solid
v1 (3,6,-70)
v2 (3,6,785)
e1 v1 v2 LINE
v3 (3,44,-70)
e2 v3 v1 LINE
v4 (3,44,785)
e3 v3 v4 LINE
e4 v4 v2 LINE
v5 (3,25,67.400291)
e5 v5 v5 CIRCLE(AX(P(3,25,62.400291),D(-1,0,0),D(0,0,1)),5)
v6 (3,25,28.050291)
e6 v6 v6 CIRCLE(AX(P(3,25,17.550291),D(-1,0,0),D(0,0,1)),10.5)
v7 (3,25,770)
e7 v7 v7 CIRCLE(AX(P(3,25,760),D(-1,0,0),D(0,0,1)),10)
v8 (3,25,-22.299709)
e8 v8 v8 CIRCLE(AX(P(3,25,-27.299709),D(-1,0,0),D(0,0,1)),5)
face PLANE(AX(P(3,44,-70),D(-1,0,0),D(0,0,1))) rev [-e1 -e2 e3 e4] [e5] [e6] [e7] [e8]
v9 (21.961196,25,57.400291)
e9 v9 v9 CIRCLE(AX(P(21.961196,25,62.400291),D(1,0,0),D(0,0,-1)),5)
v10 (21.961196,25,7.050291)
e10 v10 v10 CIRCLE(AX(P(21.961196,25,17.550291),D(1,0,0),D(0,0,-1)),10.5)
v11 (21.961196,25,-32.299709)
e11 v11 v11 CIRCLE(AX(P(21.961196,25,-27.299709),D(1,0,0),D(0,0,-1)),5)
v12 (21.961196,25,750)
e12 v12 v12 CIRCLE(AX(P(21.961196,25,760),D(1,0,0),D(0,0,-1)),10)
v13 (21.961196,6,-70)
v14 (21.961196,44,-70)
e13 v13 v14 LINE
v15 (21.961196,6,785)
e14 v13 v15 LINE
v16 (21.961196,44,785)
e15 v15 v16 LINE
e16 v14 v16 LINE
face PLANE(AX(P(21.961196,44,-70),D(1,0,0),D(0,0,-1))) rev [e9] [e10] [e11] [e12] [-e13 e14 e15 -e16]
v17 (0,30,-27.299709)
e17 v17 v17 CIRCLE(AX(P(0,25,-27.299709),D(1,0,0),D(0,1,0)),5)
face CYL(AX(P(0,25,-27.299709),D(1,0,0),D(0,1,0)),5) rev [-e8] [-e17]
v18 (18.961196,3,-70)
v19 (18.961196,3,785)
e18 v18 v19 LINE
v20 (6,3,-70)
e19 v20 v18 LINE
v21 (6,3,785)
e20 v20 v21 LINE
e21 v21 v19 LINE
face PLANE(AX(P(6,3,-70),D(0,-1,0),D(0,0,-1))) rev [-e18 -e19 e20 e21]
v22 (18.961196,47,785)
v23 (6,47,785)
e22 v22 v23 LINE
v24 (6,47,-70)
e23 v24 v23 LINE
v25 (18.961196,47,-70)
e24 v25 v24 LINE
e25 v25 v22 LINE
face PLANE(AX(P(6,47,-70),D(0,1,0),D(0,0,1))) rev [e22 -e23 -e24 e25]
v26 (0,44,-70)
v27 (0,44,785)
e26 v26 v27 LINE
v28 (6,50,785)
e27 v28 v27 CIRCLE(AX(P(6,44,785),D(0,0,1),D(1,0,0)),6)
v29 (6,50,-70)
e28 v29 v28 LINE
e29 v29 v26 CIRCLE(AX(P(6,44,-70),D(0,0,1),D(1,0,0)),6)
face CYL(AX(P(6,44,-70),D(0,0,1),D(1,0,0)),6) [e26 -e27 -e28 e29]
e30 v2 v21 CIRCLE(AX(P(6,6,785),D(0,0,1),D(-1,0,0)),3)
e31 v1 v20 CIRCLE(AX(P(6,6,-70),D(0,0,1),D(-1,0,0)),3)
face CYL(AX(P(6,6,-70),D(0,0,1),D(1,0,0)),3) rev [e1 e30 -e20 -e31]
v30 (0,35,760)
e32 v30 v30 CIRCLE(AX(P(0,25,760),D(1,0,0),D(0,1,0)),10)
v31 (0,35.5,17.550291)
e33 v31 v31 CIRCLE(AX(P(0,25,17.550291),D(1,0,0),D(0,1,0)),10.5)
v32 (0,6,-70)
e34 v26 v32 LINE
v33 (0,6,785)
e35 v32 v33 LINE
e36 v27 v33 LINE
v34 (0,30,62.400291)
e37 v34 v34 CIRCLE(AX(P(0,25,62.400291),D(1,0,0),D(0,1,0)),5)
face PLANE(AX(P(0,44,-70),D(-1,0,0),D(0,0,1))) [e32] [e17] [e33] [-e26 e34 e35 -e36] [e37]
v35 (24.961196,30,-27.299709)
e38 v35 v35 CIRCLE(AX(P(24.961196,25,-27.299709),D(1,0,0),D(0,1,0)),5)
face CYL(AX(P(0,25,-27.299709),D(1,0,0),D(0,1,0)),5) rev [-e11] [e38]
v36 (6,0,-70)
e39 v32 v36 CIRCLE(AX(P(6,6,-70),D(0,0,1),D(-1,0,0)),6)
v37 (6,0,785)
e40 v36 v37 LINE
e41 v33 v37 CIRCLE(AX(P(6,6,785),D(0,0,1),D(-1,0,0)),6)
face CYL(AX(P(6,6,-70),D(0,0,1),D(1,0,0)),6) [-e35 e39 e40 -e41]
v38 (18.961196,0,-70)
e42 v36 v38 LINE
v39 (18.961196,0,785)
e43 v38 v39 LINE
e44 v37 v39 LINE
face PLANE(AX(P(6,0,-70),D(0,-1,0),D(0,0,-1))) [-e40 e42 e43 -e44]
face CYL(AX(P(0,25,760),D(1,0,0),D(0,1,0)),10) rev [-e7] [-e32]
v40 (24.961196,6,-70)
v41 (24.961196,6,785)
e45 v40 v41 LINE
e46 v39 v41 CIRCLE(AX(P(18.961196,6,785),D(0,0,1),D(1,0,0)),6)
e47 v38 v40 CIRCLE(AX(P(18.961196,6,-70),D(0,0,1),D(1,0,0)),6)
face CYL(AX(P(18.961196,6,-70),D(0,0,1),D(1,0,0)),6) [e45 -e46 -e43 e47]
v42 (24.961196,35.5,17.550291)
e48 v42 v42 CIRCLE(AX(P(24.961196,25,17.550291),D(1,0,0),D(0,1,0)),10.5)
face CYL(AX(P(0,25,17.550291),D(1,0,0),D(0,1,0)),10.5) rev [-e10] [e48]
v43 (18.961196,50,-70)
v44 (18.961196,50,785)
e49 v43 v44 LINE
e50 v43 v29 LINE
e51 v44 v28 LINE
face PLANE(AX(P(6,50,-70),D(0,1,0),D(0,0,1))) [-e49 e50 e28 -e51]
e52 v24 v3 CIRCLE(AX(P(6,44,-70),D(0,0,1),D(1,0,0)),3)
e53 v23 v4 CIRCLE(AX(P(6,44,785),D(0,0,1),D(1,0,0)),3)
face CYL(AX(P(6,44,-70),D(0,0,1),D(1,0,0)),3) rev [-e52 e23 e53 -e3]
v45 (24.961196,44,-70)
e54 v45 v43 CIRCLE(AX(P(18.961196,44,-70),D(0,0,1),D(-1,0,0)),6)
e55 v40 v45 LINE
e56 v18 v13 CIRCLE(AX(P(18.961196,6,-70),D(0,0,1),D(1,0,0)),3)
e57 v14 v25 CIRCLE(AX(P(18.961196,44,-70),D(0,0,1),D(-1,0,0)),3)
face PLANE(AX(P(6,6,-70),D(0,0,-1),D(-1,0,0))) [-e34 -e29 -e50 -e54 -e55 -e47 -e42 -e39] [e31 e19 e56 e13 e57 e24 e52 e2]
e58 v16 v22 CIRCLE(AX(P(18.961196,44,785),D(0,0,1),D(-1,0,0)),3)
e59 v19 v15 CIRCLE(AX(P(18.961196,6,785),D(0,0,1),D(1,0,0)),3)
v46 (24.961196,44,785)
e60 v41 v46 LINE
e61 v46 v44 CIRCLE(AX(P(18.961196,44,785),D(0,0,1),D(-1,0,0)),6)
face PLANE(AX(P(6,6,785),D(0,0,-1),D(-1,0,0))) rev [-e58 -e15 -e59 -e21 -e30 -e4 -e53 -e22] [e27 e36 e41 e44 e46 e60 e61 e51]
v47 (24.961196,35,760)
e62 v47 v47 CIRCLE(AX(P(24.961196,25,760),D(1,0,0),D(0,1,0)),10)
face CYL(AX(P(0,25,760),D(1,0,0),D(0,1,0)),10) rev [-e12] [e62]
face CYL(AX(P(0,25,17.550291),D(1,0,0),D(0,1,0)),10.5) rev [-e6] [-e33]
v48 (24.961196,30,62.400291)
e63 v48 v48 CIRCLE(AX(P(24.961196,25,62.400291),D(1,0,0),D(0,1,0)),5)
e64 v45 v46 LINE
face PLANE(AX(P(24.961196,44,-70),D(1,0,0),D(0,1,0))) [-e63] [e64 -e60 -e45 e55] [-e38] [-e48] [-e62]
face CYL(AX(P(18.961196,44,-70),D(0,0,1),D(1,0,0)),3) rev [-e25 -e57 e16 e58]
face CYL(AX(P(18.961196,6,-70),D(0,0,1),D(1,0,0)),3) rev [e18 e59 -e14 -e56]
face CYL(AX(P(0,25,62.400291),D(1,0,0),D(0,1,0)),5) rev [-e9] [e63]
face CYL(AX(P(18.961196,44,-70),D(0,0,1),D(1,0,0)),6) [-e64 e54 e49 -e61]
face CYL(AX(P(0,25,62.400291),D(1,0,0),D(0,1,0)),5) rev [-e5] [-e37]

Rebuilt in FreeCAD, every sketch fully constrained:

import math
import FreeCAD as App
import Part
import Sketcher
Q = App.Units.Quantity

doc = App.newDocument("Part")
body = doc.addObject("PartDesign::Body", "Body")

# Sketch on XY plane
sketch1 = body.newObject("Sketcher::SketchObject", "Sketch")
sketch1.AttachmentSupport = (doc.getObject("XY_Plane"), [""])
sketch1.MapMode = "FlatFace"
sketch1.addGeometry([
    Part.LineSegment(App.Vector(0, 44, 0), App.Vector(0, 6, 0)),  # 0
    Part.ArcOfCircle(Part.Circle(App.Vector(6, 6, 0), App.Vector(0, 0, 1), 6), math.radians(180), math.radians(270)),  # 1
    Part.LineSegment(App.Vector(6, 0, 0), App.Vector(18.961196, 0, 0)),  # 2
    Part.ArcOfCircle(Part.Circle(App.Vector(18.961196, 6, 0), App.Vector(0, 0, 1), 6), math.radians(-90), math.radians(0)),  # 3
    Part.LineSegment(App.Vector(24.961196, 6, 0), App.Vector(24.961196, 44, 0)),  # 4
    Part.ArcOfCircle(Part.Circle(App.Vector(18.961196, 44, 0), App.Vector(0, 0, 1), 6), math.radians(0), math.radians(90)),  # 5
    Part.LineSegment(App.Vector(18.961196, 50, 0), App.Vector(6, 50, 0)),  # 6
    Part.ArcOfCircle(Part.Circle(App.Vector(6, 44, 0), App.Vector(0, 0, 1), 6), math.radians(90), math.radians(180)),  # 7
    Part.LineSegment(App.Vector(3, 6, 0), App.Vector(3, 44, 0)),  # 8
    Part.ArcOfCircle(Part.Circle(App.Vector(6, 44, 0), App.Vector(0, 0, 1), 3), math.radians(90), math.radians(180)),  # 9
    Part.LineSegment(App.Vector(6, 47, 0), App.Vector(18.961196, 47, 0)),  # 10
    Part.ArcOfCircle(Part.Circle(App.Vector(18.961196, 44, 0), App.Vector(0, 0, 1), 3), math.radians(0), math.radians(90)),  # 11
    Part.LineSegment(App.Vector(21.961196, 44, 0), App.Vector(21.961196, 6, 0)),  # 12
    Part.ArcOfCircle(Part.Circle(App.Vector(18.961196, 6, 0), App.Vector(0, 0, 1), 3), math.radians(-90), math.radians(0)),  # 13
    Part.LineSegment(App.Vector(18.961196, 3, 0), App.Vector(6, 3, 0)),  # 14
    Part.ArcOfCircle(Part.Circle(App.Vector(6, 6, 0), App.Vector(0, 0, 1), 3), math.radians(180), math.radians(270)),  # 15
], False)
sketch1.addConstraint([
    Sketcher.Constraint("Tangent", 0, 2, 1, 1),
    Sketcher.Constraint("Tangent", 1, 2, 2, 1),
    Sketcher.Constraint("Tangent", 2, 2, 3, 1),
    Sketcher.Constraint("Tangent", 3, 2, 4, 1),
    Sketcher.Constraint("Tangent", 4, 2, 5, 1),
    Sketcher.Constraint("Tangent", 5, 2, 6, 1),
    Sketcher.Constraint("Tangent", 6, 2, 7, 1),
    Sketcher.Constraint("Tangent", 7, 2, 0, 1),
    Sketcher.Constraint("Tangent", 8, 2, 9, 2),
    Sketcher.Constraint("Tangent", 9, 1, 10, 1),
    Sketcher.Constraint("Tangent", 10, 2, 11, 2),
    Sketcher.Constraint("Tangent", 11, 1, 12, 1),
    Sketcher.Constraint("Tangent", 12, 2, 13, 2),
    Sketcher.Constraint("Tangent", 13, 1, 14, 1),
    Sketcher.Constraint("Tangent", 14, 2, 15, 2),
    Sketcher.Constraint("Tangent", 15, 1, 8, 1),
    Sketcher.Constraint("Vertical", 0),
    Sketcher.Constraint("Horizontal", 2),
    Sketcher.Constraint("Vertical", 4),
    Sketcher.Constraint("Horizontal", 6),
    Sketcher.Constraint("Vertical", 8),
    Sketcher.Constraint("Horizontal", 10),
    Sketcher.Constraint("Vertical", 12),
    Sketcher.Constraint("Horizontal", 14),
    Sketcher.Constraint("Coincident", 9, 3, 7, 3),
    Sketcher.Constraint("Coincident", 11, 3, 5, 3),
    Sketcher.Constraint("Coincident", 13, 3, 3, 3),
    Sketcher.Constraint("Equal", 1, 3),
    Sketcher.Constraint("Equal", 3, 5),
    Sketcher.Constraint("Equal", 5, 7),
    Sketcher.Constraint("Equal", 13, 15),
    Sketcher.Constraint("PointOnObject", 0, 2, -2),
    Sketcher.Constraint("PointOnObject", 1, 2, -1),
    Sketcher.Constraint("Radius", 1, Q("6 mm")),
    Sketcher.Constraint("Radius", 9, Q("3 mm")),
    Sketcher.Constraint("DistanceY", 0, 2, 0, 1, Q("38 mm")),
    Sketcher.Constraint("DistanceX", 2, 1, 2, 2, Q("12.961196 mm")),
])
pad1 = body.newObject("PartDesign::Pad", "Pad")
pad1.Profile = sketch1
pad1.Type = "TwoLengths"
pad1.Length = 785
pad1.Length2 = 70

# Sketch on YZ plane
sketch2 = body.newObject("Sketcher::SketchObject", "Sketch001")
sketch2.AttachmentSupport = (doc.getObject("YZ_Plane"), [""])
sketch2.MapMode = "FlatFace"
sketch2.AttachmentOffset = App.Placement(App.Vector(0, 0, 24.961196), App.Rotation())
sketch2.addGeometry([
    Part.Circle(App.Vector(25, 17.550291, 0), App.Vector(0, 0, 1), 10.5),
    Part.Circle(App.Vector(25, 62.400291, 0), App.Vector(0, 0, 1), 5),
    Part.Circle(App.Vector(25, 760, 0), App.Vector(0, 0, 1), 10),
    Part.Circle(App.Vector(25, -27.299709, 0), App.Vector(0, 0, 1), 5),
], False)
sketch2.addConstraint([
    Sketcher.Constraint("Equal", 1, 3),
    Sketcher.Constraint("Vertical", 0, 3, 1, 3),
    Sketcher.Constraint("Vertical", 1, 3, 2, 3),
    Sketcher.Constraint("Vertical", 2, 3, 3, 3),
    Sketcher.Constraint("Diameter", 0, Q("21 mm")),
    Sketcher.Constraint("Diameter", 1, Q("10 mm")),
    Sketcher.Constraint("Diameter", 2, Q("20 mm")),
    Sketcher.Constraint("DistanceX", -1, 1, 0, 3, Q("25 mm")),
    Sketcher.Constraint("DistanceY", -1, 1, 2, 3, Q("760 mm")),
    Sketcher.Constraint("DistanceY", 3, 3, 1, 3, Q("89.7 mm")),
    Sketcher.Constraint("DistanceY", 0, 3, 1, 3, Q("44.85 mm")),
    Sketcher.Constraint("DistanceY", -1, 1, 0, 3, Q("17.550291 mm")),
])
pocket1 = body.newObject("PartDesign::Pocket", "Pocket")
pocket1.Profile = sketch2
pocket1.Type = "ThroughAll"

doc.recompute()
